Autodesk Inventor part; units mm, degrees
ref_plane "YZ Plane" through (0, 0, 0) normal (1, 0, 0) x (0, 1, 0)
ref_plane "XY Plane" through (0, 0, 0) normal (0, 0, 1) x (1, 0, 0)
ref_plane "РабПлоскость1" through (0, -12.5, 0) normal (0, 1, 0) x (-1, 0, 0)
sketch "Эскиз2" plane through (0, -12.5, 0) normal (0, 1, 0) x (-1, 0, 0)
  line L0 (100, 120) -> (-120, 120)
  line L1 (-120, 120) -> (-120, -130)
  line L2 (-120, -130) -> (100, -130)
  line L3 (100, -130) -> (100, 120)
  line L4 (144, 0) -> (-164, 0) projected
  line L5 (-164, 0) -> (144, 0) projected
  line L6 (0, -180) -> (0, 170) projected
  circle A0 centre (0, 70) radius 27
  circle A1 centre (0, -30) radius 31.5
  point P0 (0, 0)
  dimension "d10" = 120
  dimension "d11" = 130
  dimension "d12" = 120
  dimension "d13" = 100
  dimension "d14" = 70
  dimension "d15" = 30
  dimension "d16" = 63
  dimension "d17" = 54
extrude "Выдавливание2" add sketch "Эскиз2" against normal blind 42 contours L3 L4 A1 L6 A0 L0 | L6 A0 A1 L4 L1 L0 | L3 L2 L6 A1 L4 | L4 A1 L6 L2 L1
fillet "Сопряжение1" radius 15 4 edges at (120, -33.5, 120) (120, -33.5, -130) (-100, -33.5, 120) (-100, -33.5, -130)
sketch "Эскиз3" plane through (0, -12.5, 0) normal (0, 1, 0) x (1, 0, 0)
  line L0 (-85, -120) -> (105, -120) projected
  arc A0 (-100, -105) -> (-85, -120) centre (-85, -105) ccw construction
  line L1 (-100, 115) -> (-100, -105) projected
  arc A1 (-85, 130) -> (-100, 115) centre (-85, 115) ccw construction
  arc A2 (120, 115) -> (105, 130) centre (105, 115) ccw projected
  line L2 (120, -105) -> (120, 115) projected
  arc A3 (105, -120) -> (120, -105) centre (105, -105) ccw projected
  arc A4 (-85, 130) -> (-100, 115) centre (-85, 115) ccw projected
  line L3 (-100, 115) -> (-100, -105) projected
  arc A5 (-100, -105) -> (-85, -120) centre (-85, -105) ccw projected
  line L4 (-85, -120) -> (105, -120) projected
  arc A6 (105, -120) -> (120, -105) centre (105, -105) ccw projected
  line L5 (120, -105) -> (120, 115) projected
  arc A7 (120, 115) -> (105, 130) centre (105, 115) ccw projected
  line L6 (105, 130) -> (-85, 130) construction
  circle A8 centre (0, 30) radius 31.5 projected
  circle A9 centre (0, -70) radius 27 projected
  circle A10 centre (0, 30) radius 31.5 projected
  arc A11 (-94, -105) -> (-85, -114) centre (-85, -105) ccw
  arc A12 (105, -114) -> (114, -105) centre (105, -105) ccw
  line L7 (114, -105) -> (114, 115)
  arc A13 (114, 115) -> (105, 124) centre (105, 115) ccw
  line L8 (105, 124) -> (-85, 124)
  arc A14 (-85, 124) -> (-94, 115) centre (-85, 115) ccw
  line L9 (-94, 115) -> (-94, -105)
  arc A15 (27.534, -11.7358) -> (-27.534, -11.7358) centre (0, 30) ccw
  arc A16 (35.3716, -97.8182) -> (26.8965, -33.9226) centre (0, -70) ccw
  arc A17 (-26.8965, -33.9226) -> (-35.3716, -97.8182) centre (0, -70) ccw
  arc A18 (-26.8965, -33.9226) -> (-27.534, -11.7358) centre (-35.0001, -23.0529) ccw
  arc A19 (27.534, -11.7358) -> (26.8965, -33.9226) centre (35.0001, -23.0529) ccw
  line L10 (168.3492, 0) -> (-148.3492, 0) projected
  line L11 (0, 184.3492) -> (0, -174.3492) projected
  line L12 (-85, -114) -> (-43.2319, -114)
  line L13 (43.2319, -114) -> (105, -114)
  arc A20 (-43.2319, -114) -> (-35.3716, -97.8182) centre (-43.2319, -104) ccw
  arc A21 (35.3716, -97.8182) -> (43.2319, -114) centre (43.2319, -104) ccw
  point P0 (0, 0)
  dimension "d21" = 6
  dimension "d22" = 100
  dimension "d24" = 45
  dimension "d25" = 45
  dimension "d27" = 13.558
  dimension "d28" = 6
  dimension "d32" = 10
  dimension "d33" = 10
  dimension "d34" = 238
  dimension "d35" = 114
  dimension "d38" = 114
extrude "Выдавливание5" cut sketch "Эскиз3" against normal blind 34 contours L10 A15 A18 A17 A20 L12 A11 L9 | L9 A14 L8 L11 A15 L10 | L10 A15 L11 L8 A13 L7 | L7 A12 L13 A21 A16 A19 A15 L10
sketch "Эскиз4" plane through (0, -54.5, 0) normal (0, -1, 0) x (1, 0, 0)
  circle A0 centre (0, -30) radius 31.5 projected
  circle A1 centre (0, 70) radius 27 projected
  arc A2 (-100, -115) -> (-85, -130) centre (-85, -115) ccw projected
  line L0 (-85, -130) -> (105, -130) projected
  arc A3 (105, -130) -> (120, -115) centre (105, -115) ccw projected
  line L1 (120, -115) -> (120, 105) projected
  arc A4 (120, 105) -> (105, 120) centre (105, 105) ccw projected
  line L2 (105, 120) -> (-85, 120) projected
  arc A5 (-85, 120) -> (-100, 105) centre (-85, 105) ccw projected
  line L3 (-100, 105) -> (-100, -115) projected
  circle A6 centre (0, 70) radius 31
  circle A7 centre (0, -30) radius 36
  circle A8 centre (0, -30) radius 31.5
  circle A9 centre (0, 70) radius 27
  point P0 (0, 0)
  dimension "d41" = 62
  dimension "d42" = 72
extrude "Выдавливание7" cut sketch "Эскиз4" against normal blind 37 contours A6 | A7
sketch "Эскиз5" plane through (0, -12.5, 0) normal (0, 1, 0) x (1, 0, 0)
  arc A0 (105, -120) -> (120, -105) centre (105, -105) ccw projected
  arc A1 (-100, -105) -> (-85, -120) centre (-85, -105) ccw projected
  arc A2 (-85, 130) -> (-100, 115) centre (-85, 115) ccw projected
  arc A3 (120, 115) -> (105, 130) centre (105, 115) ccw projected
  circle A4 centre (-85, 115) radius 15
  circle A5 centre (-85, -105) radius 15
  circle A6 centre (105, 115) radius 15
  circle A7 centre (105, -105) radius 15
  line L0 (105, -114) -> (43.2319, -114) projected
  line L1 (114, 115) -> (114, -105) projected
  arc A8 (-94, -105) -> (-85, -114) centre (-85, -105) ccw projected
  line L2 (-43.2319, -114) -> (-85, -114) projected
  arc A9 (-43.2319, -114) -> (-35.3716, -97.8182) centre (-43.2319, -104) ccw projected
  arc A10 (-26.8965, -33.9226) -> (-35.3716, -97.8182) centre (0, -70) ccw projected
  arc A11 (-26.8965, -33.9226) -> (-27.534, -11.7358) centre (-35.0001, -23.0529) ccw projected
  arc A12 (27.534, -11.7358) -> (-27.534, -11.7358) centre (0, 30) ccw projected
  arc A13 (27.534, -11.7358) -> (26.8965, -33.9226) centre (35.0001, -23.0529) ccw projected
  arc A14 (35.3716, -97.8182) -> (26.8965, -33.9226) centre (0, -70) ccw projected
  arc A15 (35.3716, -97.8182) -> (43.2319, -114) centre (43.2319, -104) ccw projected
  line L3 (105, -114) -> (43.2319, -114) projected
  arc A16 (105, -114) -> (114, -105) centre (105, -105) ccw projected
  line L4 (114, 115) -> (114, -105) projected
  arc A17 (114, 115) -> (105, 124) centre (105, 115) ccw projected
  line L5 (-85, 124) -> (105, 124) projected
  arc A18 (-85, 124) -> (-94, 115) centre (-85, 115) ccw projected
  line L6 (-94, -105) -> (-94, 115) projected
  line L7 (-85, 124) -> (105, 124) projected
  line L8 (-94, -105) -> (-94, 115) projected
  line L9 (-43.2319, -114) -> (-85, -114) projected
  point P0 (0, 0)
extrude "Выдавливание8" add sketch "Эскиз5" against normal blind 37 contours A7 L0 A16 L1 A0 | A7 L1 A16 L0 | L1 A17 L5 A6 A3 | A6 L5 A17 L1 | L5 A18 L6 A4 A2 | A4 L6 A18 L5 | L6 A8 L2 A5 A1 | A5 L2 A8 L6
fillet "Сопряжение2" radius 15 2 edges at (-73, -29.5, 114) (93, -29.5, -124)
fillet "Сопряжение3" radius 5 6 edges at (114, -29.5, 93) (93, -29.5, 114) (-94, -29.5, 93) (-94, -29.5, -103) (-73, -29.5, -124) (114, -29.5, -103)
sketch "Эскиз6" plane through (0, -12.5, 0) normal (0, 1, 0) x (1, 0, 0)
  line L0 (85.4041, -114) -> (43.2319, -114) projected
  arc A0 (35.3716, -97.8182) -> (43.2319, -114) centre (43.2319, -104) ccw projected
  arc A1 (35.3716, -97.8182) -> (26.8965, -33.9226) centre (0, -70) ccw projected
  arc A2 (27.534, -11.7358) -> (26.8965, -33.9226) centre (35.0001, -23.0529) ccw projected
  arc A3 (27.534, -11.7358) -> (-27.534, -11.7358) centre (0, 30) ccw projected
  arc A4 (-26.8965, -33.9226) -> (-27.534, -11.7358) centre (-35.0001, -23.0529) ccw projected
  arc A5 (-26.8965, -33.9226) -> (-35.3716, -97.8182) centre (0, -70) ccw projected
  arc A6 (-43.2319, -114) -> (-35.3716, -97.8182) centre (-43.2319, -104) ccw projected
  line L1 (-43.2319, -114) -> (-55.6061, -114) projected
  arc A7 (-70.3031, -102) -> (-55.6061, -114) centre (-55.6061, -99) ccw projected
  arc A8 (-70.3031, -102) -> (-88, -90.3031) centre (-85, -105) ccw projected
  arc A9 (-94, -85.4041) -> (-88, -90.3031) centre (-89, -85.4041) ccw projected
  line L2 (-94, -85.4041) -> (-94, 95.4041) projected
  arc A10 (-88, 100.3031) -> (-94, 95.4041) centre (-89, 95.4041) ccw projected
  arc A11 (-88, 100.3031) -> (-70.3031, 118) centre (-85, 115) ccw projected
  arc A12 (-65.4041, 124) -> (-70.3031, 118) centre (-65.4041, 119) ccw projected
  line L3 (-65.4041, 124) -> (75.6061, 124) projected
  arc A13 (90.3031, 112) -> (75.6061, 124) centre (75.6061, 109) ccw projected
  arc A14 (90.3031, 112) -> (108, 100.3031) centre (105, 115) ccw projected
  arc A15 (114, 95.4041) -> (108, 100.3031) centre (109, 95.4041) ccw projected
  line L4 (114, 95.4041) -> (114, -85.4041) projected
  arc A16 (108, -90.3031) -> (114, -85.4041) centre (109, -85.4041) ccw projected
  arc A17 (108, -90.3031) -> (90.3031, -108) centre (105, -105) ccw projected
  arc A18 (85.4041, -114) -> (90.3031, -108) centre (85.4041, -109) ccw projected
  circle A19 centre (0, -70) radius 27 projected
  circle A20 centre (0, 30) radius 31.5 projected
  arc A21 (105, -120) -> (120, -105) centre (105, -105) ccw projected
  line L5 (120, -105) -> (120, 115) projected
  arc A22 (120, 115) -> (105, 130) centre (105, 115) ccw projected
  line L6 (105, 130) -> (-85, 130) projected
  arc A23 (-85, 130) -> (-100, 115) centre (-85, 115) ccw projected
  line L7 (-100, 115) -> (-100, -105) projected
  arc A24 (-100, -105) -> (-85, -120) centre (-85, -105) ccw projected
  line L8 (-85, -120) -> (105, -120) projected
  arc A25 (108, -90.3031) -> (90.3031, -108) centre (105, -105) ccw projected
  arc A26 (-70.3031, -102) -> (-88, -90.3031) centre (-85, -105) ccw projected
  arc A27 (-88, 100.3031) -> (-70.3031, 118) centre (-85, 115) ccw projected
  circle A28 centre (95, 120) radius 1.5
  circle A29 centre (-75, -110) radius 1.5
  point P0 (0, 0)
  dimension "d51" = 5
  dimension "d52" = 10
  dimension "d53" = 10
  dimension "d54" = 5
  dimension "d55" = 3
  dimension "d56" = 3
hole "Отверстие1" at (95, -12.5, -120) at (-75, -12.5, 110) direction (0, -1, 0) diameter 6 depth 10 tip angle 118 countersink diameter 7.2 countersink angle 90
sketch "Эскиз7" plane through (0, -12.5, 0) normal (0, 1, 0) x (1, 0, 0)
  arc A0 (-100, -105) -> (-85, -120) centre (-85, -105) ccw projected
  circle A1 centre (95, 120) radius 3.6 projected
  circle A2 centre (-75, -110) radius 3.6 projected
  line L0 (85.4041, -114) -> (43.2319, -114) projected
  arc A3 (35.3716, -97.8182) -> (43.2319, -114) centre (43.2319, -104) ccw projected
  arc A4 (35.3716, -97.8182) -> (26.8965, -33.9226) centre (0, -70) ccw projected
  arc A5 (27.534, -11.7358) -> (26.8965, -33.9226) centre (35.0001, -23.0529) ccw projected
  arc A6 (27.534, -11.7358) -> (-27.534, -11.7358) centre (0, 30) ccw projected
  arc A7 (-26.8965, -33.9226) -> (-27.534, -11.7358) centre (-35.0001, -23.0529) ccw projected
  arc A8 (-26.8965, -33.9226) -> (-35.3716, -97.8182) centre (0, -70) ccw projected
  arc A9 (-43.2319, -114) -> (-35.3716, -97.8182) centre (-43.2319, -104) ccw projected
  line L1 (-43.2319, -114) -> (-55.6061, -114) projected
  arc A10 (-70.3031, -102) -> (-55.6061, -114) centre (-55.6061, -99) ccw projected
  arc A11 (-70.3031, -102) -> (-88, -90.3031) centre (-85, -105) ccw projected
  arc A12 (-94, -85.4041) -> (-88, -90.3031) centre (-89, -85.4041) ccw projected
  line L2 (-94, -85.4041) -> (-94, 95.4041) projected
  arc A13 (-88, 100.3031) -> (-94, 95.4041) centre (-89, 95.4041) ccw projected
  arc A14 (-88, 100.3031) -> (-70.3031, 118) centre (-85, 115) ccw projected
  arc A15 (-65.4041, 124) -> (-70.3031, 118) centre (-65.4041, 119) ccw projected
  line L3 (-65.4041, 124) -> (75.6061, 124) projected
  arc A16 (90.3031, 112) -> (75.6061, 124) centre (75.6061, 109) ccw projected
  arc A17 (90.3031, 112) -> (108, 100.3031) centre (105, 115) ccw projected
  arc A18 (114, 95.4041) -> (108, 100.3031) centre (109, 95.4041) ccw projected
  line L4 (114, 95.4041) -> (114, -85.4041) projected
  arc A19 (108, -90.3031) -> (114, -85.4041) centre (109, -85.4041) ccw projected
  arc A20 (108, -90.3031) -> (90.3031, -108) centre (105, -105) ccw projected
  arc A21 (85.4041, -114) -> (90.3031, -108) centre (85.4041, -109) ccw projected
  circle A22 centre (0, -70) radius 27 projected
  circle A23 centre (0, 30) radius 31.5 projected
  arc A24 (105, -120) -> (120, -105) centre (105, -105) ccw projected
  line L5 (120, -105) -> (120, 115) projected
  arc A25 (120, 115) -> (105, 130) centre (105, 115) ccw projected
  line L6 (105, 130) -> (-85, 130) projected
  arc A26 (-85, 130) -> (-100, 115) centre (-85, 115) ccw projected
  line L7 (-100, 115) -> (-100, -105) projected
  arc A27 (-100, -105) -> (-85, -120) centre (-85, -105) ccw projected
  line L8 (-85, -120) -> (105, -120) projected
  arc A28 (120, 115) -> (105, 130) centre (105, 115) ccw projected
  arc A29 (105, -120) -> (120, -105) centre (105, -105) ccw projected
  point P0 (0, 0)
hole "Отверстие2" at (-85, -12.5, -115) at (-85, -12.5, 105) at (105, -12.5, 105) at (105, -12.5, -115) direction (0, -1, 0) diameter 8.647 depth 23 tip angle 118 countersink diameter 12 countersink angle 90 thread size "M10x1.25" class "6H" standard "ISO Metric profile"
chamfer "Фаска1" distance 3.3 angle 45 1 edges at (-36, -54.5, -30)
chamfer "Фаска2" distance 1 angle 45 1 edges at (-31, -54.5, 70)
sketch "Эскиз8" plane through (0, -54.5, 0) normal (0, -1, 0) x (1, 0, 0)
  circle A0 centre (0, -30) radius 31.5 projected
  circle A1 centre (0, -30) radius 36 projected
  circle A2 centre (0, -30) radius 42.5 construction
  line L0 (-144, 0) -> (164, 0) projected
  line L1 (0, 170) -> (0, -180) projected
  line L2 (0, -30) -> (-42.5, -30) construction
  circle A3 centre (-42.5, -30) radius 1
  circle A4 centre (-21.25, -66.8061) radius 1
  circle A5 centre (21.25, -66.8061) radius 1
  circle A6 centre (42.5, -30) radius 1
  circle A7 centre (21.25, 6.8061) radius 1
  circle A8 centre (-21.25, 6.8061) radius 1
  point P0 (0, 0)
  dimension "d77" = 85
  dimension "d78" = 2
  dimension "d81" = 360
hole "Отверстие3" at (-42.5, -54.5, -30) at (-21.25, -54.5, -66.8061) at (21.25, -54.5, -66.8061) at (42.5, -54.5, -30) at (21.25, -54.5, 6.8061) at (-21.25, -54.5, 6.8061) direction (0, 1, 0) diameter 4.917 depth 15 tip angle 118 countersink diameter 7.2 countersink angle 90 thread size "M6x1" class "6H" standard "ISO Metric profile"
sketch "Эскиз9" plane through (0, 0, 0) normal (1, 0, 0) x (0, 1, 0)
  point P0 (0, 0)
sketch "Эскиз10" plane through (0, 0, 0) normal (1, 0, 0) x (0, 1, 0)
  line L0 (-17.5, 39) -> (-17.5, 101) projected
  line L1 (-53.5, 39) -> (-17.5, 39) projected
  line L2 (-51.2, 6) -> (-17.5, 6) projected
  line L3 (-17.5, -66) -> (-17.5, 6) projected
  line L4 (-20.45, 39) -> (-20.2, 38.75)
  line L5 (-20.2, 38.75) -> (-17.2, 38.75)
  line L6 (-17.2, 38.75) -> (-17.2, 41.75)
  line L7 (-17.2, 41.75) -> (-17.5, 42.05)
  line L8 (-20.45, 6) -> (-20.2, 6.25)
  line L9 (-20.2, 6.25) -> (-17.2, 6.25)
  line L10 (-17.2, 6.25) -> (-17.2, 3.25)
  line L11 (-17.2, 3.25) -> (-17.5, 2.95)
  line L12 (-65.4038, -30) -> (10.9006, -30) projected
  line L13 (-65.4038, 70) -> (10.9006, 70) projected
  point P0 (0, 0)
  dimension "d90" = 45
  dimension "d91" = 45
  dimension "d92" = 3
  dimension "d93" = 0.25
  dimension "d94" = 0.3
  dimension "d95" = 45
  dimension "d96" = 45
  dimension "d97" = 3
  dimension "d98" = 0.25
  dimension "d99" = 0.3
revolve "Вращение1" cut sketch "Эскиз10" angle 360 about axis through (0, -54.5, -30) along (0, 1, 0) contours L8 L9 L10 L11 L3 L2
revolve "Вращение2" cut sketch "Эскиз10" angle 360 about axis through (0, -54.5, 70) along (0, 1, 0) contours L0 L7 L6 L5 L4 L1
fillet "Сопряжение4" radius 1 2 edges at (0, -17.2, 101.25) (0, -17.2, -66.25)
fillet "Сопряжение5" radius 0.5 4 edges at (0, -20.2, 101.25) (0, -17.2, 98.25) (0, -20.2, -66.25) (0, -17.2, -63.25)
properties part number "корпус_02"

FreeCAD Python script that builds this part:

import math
import FreeCAD as App
import Part
import Sketcher
from FreeCAD import Vector
Q = App.Units.Quantity


def edges_at(feature, points):
    """Names of the edges that pass closest to the given points."""
    edges = feature.Shape.Edges
    near = lambda p: min(range(len(edges)), key=lambda i: edges[i].distToShape(Part.Vertex(*p))[0])
    return sorted({f"Edge{near(p) + 1}" for p in points})

doc = App.newDocument("Part")
body = doc.addObject("PartDesign::Body", "Body")

# Sketch on XZ plane
sketch1 = body.newObject("Sketcher::SketchObject", "Sketch")
sketch1.AttachmentSupport = (doc.getObject("XZ_Plane"), [""])
sketch1.MapMode = "FlatFace"
sketch1.AttachmentOffset = App.Placement(Vector(0, 0, 12.5), App.Rotation())
sketch1.addGeometry([
    Part.LineSegment(Vector(-100, 120, 0), Vector(120, 120, 0)),  # 0
    Part.LineSegment(Vector(120, 120, 0), Vector(120, -130, 0)),  # 1
    Part.LineSegment(Vector(120, -130, 0), Vector(-100, -130, 0)),  # 2
    Part.LineSegment(Vector(-100, -130, 0), Vector(-100, 120, 0)),  # 3
    Part.Circle(Vector(0, -30, 0), Vector(0, 0, 1), 31.5),  # 4
    Part.Circle(Vector(0, 70, 0), Vector(0, 0, 1), 27),  # 5
], False)
sketch1.addConstraint([
    Sketcher.Constraint("Coincident", 0, 2, 1, 1),
    Sketcher.Constraint("Coincident", 1, 2, 2, 1),
    Sketcher.Constraint("Coincident", 2, 2, 3, 1),
    Sketcher.Constraint("Coincident", 3, 2, 0, 1),
    Sketcher.Constraint("Horizontal", 0),
    Sketcher.Constraint("Vertical", 1),
    Sketcher.Constraint("Horizontal", 2),
    Sketcher.Constraint("Vertical", 3),
    Sketcher.Constraint("PointOnObject", 4, 3, -2),
    Sketcher.Constraint("PointOnObject", 5, 3, -2),
    Sketcher.Constraint("Diameter", 4, Q("63 mm")),
    Sketcher.Constraint("Diameter", 5, Q("54 mm")),
    Sketcher.Constraint("DistanceY", 4, 3, -1, 1, Q("30 mm")),
    Sketcher.Constraint("DistanceY", -1, 1, 5, 3, Q("70 mm")),
    Sketcher.Constraint("DistanceX", -1, 1, 0, 2, Q("120 mm")),
    Sketcher.Constraint("DistanceY", -1, 1, 0, 2, Q("120 mm")),
    Sketcher.Constraint("DistanceY", 1, 2, -1, 1, Q("130 mm")),
    Sketcher.Constraint("DistanceX", 2, 2, -1, 1, Q("100 mm")),
])
pad1 = body.newObject("PartDesign::Pad", "Pad")
pad1.Profile = sketch1
pad1.Length = 42
doc.recompute()

fillet = body.newObject("PartDesign::Fillet", "Fillet")
fillet.Base = (pad1, edges_at(pad1, [
    (120, -33.5, 120),
    (120, -33.5, -130),
    (-100, -33.5, 120),
    (-100, -33.5, -130),
]))
fillet.Radius = 15

# Sketch on XZ plane
sketch2 = body.newObject("Sketcher::SketchObject", "Sketch001")
sketch2.AttachmentSupport = (doc.getObject("XZ_Plane"), [""])
sketch2.MapMode = "FlatFace"
sketch2.AttachmentOffset = App.Placement(Vector(0, 0, 12.5), App.Rotation())
sketch2.addGeometry([
    Part.ArcOfCircle(Part.Circle(Vector(0, -30, 0), Vector(0, 0, 1), 49.999982), math.radians(123.41369), math.radians(416.58631)),  # 0
    Part.ArcOfCircle(Part.Circle(Vector(35.0001, 23.0529, 0), Vector(0, 0, 1), 13.558001), math.radians(126.705338), math.radians(236.586426)),  # 1
    Part.ArcOfCircle(Part.Circle(Vector(0, 70, 0), Vector(0, 0, 1), 45.000006), math.radians(-53.294656), math.radians(38.183486)),  # 2
    Part.ArcOfCircle(Part.Circle(Vector(43.2319, 104, 0), Vector(0, 0, 1), 9.999948), math.radians(90), math.radians(218.183583)),  # 3
    Part.LineSegment(Vector(43.2319, 114, 0), Vector(105, 114, 0)),  # 4
    Part.ArcOfCircle(Part.Circle(Vector(105, 105, 0), Vector(0, 0, 1), 9), math.radians(0), math.radians(90)),  # 5
    Part.LineSegment(Vector(114, 105, 0), Vector(114, -115, 0)),  # 6
    Part.ArcOfCircle(Part.Circle(Vector(105, -115, 0), Vector(0, 0, 1), 9), math.radians(-90), math.radians(0)),  # 7
    Part.LineSegment(Vector(105, -124, 0), Vector(-85, -124, 0)),  # 8
    Part.ArcOfCircle(Part.Circle(Vector(-85, -115, 0), Vector(0, 0, 1), 9), math.radians(180), math.radians(270)),  # 9
    Part.LineSegment(Vector(-94, -115, 0), Vector(-94, 105, 0)),  # 10
    Part.ArcOfCircle(Part.Circle(Vector(-85, 105, 0), Vector(0, 0, 1), 9), math.radians(90), math.radians(180)),  # 11
    Part.LineSegment(Vector(-85, 114, 0), Vector(-43.2319, 114, 0)),  # 12
    Part.ArcOfCircle(Part.Circle(Vector(-43.2319, 104, 0), Vector(0, 0, 1), 10), math.radians(-38.183583), math.radians(90)),  # 13
    Part.ArcOfCircle(Part.Circle(Vector(0, 70, 0), Vector(0, 0, 1), 45.000026), math.radians(141.816514), math.radians(233.294656)),  # 14
    Part.ArcOfCircle(Part.Circle(Vector(-35.0001, 23.0529, 0), Vector(0, 0, 1), 13.557976), math.radians(-56.586426), math.radians(53.294662)),  # 15
], False)
sketch2.addConstraint([
    Sketcher.Constraint("Tangent", 0, 2, 1, 2),
    Sketcher.Constraint("Tangent", 1, 1, 2, 1),
    Sketcher.Constraint("Tangent", 2, 2, 3, 2),
    Sketcher.Constraint("Tangent", 3, 1, 4, 1),
    Sketcher.Constraint("Tangent", 4, 2, 5, 2),
    Sketcher.Constraint("Tangent", 5, 1, 6, 1),
    Sketcher.Constraint("Tangent", 6, 2, 7, 2),
    Sketcher.Constraint("Tangent", 7, 1, 8, 1),
    Sketcher.Constraint("Tangent", 8, 2, 9, 2),
    Sketcher.Constraint("Tangent", 9, 1, 10, 1),
    Sketcher.Constraint("Tangent", 10, 2, 11, 2),
    Sketcher.Constraint("Tangent", 11, 1, 12, 1),
    Sketcher.Constraint("Tangent", 12, 2, 13, 2),
    Sketcher.Constraint("Tangent", 13, 1, 14, 1),
    Sketcher.Constraint("Tangent", 14, 2, 15, 2),
    Sketcher.Constraint("Tangent", 15, 1, 0, 1),
    Sketcher.Constraint("Horizontal", 4),
    Sketcher.Constraint("Vertical", 6),
    Sketcher.Constraint("Horizontal", 8),
    Sketcher.Constraint("Vertical", 10),
    Sketcher.Constraint("Horizontal", 12),
    Sketcher.Constraint("Coincident", 14, 3, 2, 3),
    Sketcher.Constraint("Equal", 5, 7),
    Sketcher.Constraint("Equal", 7, 9),
    Sketcher.Constraint("Equal", 9, 11),
    Sketcher.Constraint("Equal", 3, 13),
    Sketcher.Constraint("Equal", 2, 14),
    Sketcher.Constraint("Equal", 1, 15),
    Sketcher.Constraint("Symmetric", 3, 3, 13, 3, -2),
    Sketcher.Constraint("PointOnObject", 0, 3, -2),
    Sketcher.Constraint("Radius", 0, Q("50 mm")),
    Sketcher.Constraint("Radius", 2, Q("45 mm")),
    Sketcher.Constraint("Radius", 3, Q("10 mm")),
    Sketcher.Constraint("DistanceY", -1, 1, 3, 1, Q("114 mm")),
    Sketcher.Constraint("DistanceX", -1, 1, 5, 1, Q("114 mm")),
    Sketcher.Constraint("Radius", 1, Q("13.558 mm")),
    Sketcher.Constraint("Radius", 5, Q("9 mm")),
    Sketcher.Constraint("DistanceY", 0, 3, 2, 3, Q("100 mm")),
    Sketcher.Constraint("DistanceX", 8, 2, 8, 1, Q("190 mm")),
    Sketcher.Constraint("DistanceY", 6, 2, 6, 1, Q("220 mm")),
    Sketcher.Constraint("DistanceY", 0, 3, -1, 1, Q("30 mm")),
])
pocket1 = body.newObject("PartDesign::Pocket", "Pocket")
pocket1.Profile = sketch2
pocket1.Length = 34
pocket1.Reversed = True

# Sketch on XZ plane
sketch3 = body.newObject("Sketcher::SketchObject", "Sketch002")
sketch3.AttachmentSupport = (doc.getObject("XZ_Plane"), [""])
sketch3.MapMode = "FlatFace"
sketch3.AttachmentOffset = App.Placement(Vector(0, 0, 54.5), App.Rotation())
sketch3.addGeometry([
    Part.Circle(Vector(0, 70, 0), Vector(0, 0, 1), 31),
    Part.Circle(Vector(0, 70, 0), Vector(0, 0, 1), 27),
    Part.Circle(Vector(0, -30, 0), Vector(0, 0, 1), 36),
    Part.Circle(Vector(0, -30, 0), Vector(0, 0, 1), 31.5),
], False)
sketch3.addConstraint([
    Sketcher.Constraint("Coincident", 1, 3, 0, 3),
    Sketcher.Constraint("Coincident", 3, 3, 2, 3),
    Sketcher.Constraint("PointOnObject", 0, 3, -2),
    Sketcher.Constraint("PointOnObject", 2, 3, -2),
    Sketcher.Constraint("Diameter", 0, Q("62 mm")),
    Sketcher.Constraint("Diameter", 2, Q("72 mm")),
    Sketcher.Constraint("Diameter", 1, Q("54 mm")),
    Sketcher.Constraint("Diameter", 3, Q("63 mm")),
    Sketcher.Constraint("DistanceY", -1, 1, 0, 3, Q("70 mm")),
    Sketcher.Constraint("DistanceY", 2, 3, -1, 1, Q("30 mm")),
])
pocket2 = body.newObject("PartDesign::Pocket", "Pocket001")
pocket2.Profile = sketch3
pocket2.Length = 37

# Sketch on XZ plane
sketch4 = body.newObject("Sketcher::SketchObject", "Sketch003")
sketch4.AttachmentSupport = (doc.getObject("XZ_Plane"), [""])
sketch4.MapMode = "FlatFace"
sketch4.AttachmentOffset = App.Placement(Vector(0, 0, 12.5), App.Rotation())
sketch4.addGeometry([
    Part.Circle(Vector(105, 105, 0), Vector(0, 0, 1), 15),
    Part.Circle(Vector(105, -115, 0), Vector(0, 0, 1), 15),
    Part.Circle(Vector(-85, -115, 0), Vector(0, 0, 1), 15),
    Part.Circle(Vector(-85, 105, 0), Vector(0, 0, 1), 15),
], False)
sketch4.addConstraint([
    Sketcher.Constraint("Equal", 0, 1),
    Sketcher.Constraint("Equal", 1, 2),
    Sketcher.Constraint("Equal", 2, 3),
    Sketcher.Constraint("Horizontal", 1, 3, 2, 3),
    Sketcher.Constraint("Horizontal", 0, 3, 3, 3),
    Sketcher.Constraint("Vertical", 0, 3, 1, 3),
    Sketcher.Constraint("Vertical", 2, 3, 3, 3),
    Sketcher.Constraint("Diameter", 0, Q("30 mm")),
    Sketcher.Constraint("DistanceX", -1, 1, 0, 3, Q("105 mm")),
    Sketcher.Constraint("DistanceY", -1, 1, 0, 3, Q("105 mm")),
    Sketcher.Constraint("DistanceY", 1, 3, -1, 1, Q("115 mm")),
    Sketcher.Constraint("DistanceX", 2, 3, -1, 1, Q("85 mm")),
])
pad2 = body.newObject("PartDesign::Pad", "Pad001")
pad2.Profile = sketch4
pad2.Length = 37
doc.recompute()

fillet2 = body.newObject("PartDesign::Fillet", "Fillet001")
fillet2.Base = (pad2, edges_at(pad2, [(-73, -29.5, 114), (93, -29.5, -124)]))
fillet2.Radius = 15
doc.recompute()

fillet3 = body.newObject("PartDesign::Fillet", "Fillet002")
fillet3.Base = (fillet2, edges_at(fillet2, [
    (114, -29.5, 93),
    (93, -29.5, 114),
    (-94, -29.5, 93),
    (-94, -29.5, -103),
    (-73, -29.5, -124),
    (114, -29.5, -103),
]))
fillet3.Radius = 5

# Sketch on XZ plane
sketch5 = body.newObject("Sketcher::SketchObject", "Sketch004")
sketch5.AttachmentSupport = (doc.getObject("XZ_Plane"), [""])
sketch5.MapMode = "FlatFace"
sketch5.AttachmentOffset = App.Placement(Vector(0, 0, 12.5), App.Rotation())
sketch5.addGeometry([
    Part.Circle(Vector(95, -120, 0), Vector(0, 0, 1), 3),
    Part.Circle(Vector(-75, 110, 0), Vector(0, 0, 1), 3),
], False)
sketch5.addConstraint([
    Sketcher.Constraint("Equal", 0, 1),
    Sketcher.Constraint("Diameter", 0, Q("6 mm")),
    Sketcher.Constraint("DistanceX", -1, 1, 0, 3, Q("95 mm")),
    Sketcher.Constraint("DistanceY", 0, 3, -1, 1, Q("120 mm")),
    Sketcher.Constraint("DistanceX", 1, 3, -1, 1, Q("75 mm")),
    Sketcher.Constraint("DistanceY", -1, 1, 1, 3, Q("110 mm")),
])
doc.recompute()
hole = body.newObject("PartDesign::Hole", "Hole")
hole.Profile = sketch5
hole.ThreadType = "None"
hole.Diameter = 6
hole.DepthType = "Dimension"
hole.Depth = 10
hole.DrillPoint = "Angled"
hole.DrillPointAngle = 118
hole.HoleCutType = "Countersink"
hole.HoleCutDiameter = 7.2
hole.HoleCutCountersinkAngle = 90
hole.Reversed = True

# Sketch on XZ plane
sketch6 = body.newObject("Sketcher::SketchObject", "Sketch005")
sketch6.AttachmentSupport = (doc.getObject("XZ_Plane"), [""])
sketch6.MapMode = "FlatFace"
sketch6.AttachmentOffset = App.Placement(Vector(0, 0, 12.5), App.Rotation())
sketch6.addGeometry([
    Part.Circle(Vector(-85, -115, 0), Vector(0, 0, 1), 4.3235),
    Part.Circle(Vector(-85, 105, 0), Vector(0, 0, 1), 4.3235),
    Part.Circle(Vector(105, 105, 0), Vector(0, 0, 1), 4.3235),
    Part.Circle(Vector(105, -115, 0), Vector(0, 0, 1), 4.3235),
], False)
sketch6.addConstraint([
    Sketcher.Constraint("Equal", 0, 1),
    Sketcher.Constraint("Equal", 1, 2),
    Sketcher.Constraint("Equal", 2, 3),
    Sketcher.Constraint("Horizontal", 1, 3, 2, 3),
    Sketcher.Constraint("Horizontal", 0, 3, 3, 3),
    Sketcher.Constraint("Vertical", 0, 3, 1, 3),
    Sketcher.Constraint("Vertical", 2, 3, 3, 3),
    Sketcher.Constraint("Diameter", 0, Q("8.647 mm")),
    Sketcher.Constraint("DistanceX", 0, 3, -1, 1, Q("85 mm")),
    Sketcher.Constraint("DistanceY", 0, 3, -1, 1, Q("115 mm")),
    Sketcher.Constraint("DistanceY", -1, 1, 1, 3, Q("105 mm")),
    Sketcher.Constraint("DistanceX", -1, 1, 2, 3, Q("105 mm")),
])
doc.recompute()
hole2 = body.newObject("PartDesign::Hole", "Hole001")
hole2.Profile = sketch6
hole2.ThreadType = "None"
hole2.Diameter = 8.647
hole2.DepthType = "Dimension"
hole2.Depth = 23
hole2.DrillPoint = "Angled"
hole2.DrillPointAngle = 118
hole2.HoleCutType = "Countersink"
hole2.HoleCutDiameter = 12
hole2.HoleCutCountersinkAngle = 90
hole2.Reversed = True
doc.recompute()

chamfer = body.newObject("PartDesign::Chamfer", "Chamfer")
chamfer.Base = (hole2, edges_at(hole2, [(-36, -54.5, -30)]))
chamfer.Size = 3.3
doc.recompute()

chamfer2 = body.newObject("PartDesign::Chamfer", "Chamfer001")
chamfer2.Base = (chamfer, edges_at(chamfer, [(-31, -54.5, 70)]))
chamfer2.Size = 1

# Sketch on XZ plane
sketch7 = body.newObject("Sketcher::SketchObject", "Sketch006")
sketch7.AttachmentSupport = (doc.getObject("XZ_Plane"), [""])
sketch7.MapMode = "FlatFace"
sketch7.AttachmentOffset = App.Placement(Vector(0, 0, 54.5), App.Rotation())
sketch7.addGeometry([
    Part.Circle(Vector(-42.5, -30, 0), Vector(0, 0, 1), 2.4585),  # 0
    Part.Circle(Vector(-21.25, -66.8061, 0), Vector(0, 0, 1), 2.4585),  # 1
    Part.Circle(Vector(21.25, -66.8061, 0), Vector(0, 0, 1), 2.4585),  # 2
    Part.Circle(Vector(42.5, -30, 0), Vector(0, 0, 1), 2.4585),  # 3
    Part.Circle(Vector(21.25, 6.8061, 0), Vector(0, 0, 1), 2.4585),  # 4
    Part.Circle(Vector(-21.25, 6.8061, 0), Vector(0, 0, 1), 2.4585),  # 5
], False)
sketch7.addConstraint([
    Sketcher.Constraint("Equal", 0, 1),
    Sketcher.Constraint("Equal", 1, 2),
    Sketcher.Constraint("Equal", 2, 3),
    Sketcher.Constraint("Equal", 3, 4),
    Sketcher.Constraint("Equal", 4, 5),
    Sketcher.Constraint("Symmetric", 1, 3, 2, 3, -2),
    Sketcher.Constraint("Symmetric", 0, 3, 3, 3, -2),
    Sketcher.Constraint("Symmetric", 4, 3, 5, 3, -2),
    Sketcher.Constraint("Vertical", 2, 3, 4, 3),
    Sketcher.Constraint("Diameter", 0, Q("4.917 mm")),
    Sketcher.Constraint("DistanceY", 0, 3, -1, 1, Q("30 mm")),
    Sketcher.Constraint("DistanceX", 0, 3, 3, 3, Q("85 mm")),
    Sketcher.Constraint("DistanceX", 1, 3, 2, 3, Q("42.5 mm")),
    Sketcher.Constraint("DistanceY", 1, 3, -1, 1, Q("66.806 mm")),
    Sketcher.Constraint("DistanceY", -1, 1, 4, 3, Q("6.806 mm")),
])
doc.recompute()
hole3 = body.newObject("PartDesign::Hole", "Hole002")
hole3.Profile = sketch7
hole3.ThreadType = "None"
hole3.Diameter = 4.917
hole3.DepthType = "Dimension"
hole3.Depth = 15
hole3.DrillPoint = "Angled"
hole3.DrillPointAngle = 118
hole3.HoleCutType = "Countersink"
hole3.HoleCutDiameter = 7.2
hole3.HoleCutCountersinkAngle = 90

# Sketch on YZ plane
sketch8 = body.newObject("Sketcher::SketchObject", "Sketch007")
sketch8.AttachmentSupport = (doc.getObject("YZ_Plane"), [""])
sketch8.MapMode = "FlatFace"
sketch8.addGeometry([
    Part.LineSegment(Vector(-20.2, 6.25, 0), Vector(-20.45, 6, 0)),  # 0
    Part.LineSegment(Vector(-20.45, 6, 0), Vector(-17.5, 6, 0)),  # 1
    Part.LineSegment(Vector(-17.5, 6, 0), Vector(-17.5, 2.95, 0)),  # 2
    Part.LineSegment(Vector(-17.5, 2.95, 0), Vector(-17.2, 3.25, 0)),  # 3
    Part.LineSegment(Vector(-17.2, 3.25, 0), Vector(-17.2, 6.25, 0)),  # 4
    Part.LineSegment(Vector(-17.2, 6.25, 0), Vector(-20.2, 6.25, 0)),  # 5
], False)
sketch8.addGeometry(Part.LineSegment(Vector(-20.45, -30, 0), Vector(-17.2, -30, 0)), True)  # axis
sketch8.addConstraint([
    Sketcher.Constraint("Coincident", 0, 2, 1, 1),
    Sketcher.Constraint("Coincident", 1, 2, 2, 1),
    Sketcher.Constraint("Coincident", 2, 2, 3, 1),
    Sketcher.Constraint("Coincident", 3, 2, 4, 1),
    Sketcher.Constraint("Coincident", 4, 2, 5, 1),
    Sketcher.Constraint("Coincident", 5, 2, 0, 1),
    Sketcher.Constraint("Horizontal", 1),
    Sketcher.Constraint("Vertical", 2),
    Sketcher.Constraint("Vertical", 4),
    Sketcher.Constraint("Horizontal", 5),
    Sketcher.Constraint("Horizontal", 6),
    Sketcher.Constraint("Parallel", 0, 3),
    Sketcher.Constraint("Vertical", 0, 2, 6, 1),
    Sketcher.Constraint("Vertical", 4, 2, 6, 2),
    Sketcher.Constraint("Equal", 5, 4),
    Sketcher.Constraint("DistanceX", 5, 2, 5, 1, Q("3 mm")),
    Sketcher.Constraint("Angle", 3, Q("45 deg")),
    Sketcher.Constraint("DistanceX", 2, 2, 3, 2, Q("0.3 mm")),
    Sketcher.Constraint("DistanceY", 1, 2, 4, 2, Q("0.25 mm")),
    Sketcher.Constraint("DistanceY", -1, 1, 0, 2, Q("6 mm")),
    Sketcher.Constraint("DistanceY", 6, 1, -1, 1, Q("30 mm")),
    Sketcher.Constraint("DistanceX", 1, 2, -1, 1, Q("17.5 mm")),
])
groove = body.newObject("PartDesign::Groove", "Groove")
groove.Profile = sketch8
groove.ReferenceAxis = (sketch8, ["Axis0"])
groove.Angle = 360

# Sketch on YZ plane
sketch9 = body.newObject("Sketcher::SketchObject", "Sketch008")
sketch9.AttachmentSupport = (doc.getObject("YZ_Plane"), [""])
sketch9.MapMode = "FlatFace"
sketch9.addGeometry([
    Part.LineSegment(Vector(-17.5, 42.05, 0), Vector(-17.5, 39, 0)),  # 0
    Part.LineSegment(Vector(-17.5, 39, 0), Vector(-20.45, 39, 0)),  # 1
    Part.LineSegment(Vector(-20.45, 39, 0), Vector(-20.2, 38.75, 0)),  # 2
    Part.LineSegment(Vector(-20.2, 38.75, 0), Vector(-17.2, 38.75, 0)),  # 3
    Part.LineSegment(Vector(-17.2, 38.75, 0), Vector(-17.2, 41.75, 0)),  # 4
    Part.LineSegment(Vector(-17.2, 41.75, 0), Vector(-17.5, 42.05, 0)),  # 5
], False)
sketch9.addGeometry(Part.LineSegment(Vector(-20.45, 70, 0), Vector(-17.2, 70, 0)), True)  # axis
sketch9.addConstraint([
    Sketcher.Constraint("Coincident", 0, 2, 1, 1),
    Sketcher.Constraint("Coincident", 1, 2, 2, 1),
    Sketcher.Constraint("Coincident", 2, 2, 3, 1),
    Sketcher.Constraint("Coincident", 3, 2, 4, 1),
    Sketcher.Constraint("Coincident", 4, 2, 5, 1),
    Sketcher.Constraint("Coincident", 5, 2, 0, 1),
    Sketcher.Constraint("Vertical", 0),
    Sketcher.Constraint("Horizontal", 1),
    Sketcher.Constraint("Horizontal", 3),
    Sketcher.Constraint("Vertical", 4),
    Sketcher.Constraint("Horizontal", 6),
    Sketcher.Constraint("Parallel", 2, 5),
    Sketcher.Constraint("Vertical", 1, 2, 6, 1),
    Sketcher.Constraint("Vertical", 4, 2, 6, 2),
    Sketcher.Constraint("Equal", 3, 4),
    Sketcher.Constraint("DistanceX", 3, 1, 3, 2, Q("3 mm")),
    Sketcher.Constraint("Angle", 2, Q("-45 deg")),
    Sketcher.Constraint("DistanceX", 0, 2, 3, 2, Q("0.3 mm")),
    Sketcher.Constraint("DistanceX", 1, 2, 2, 2, Q("0.25 mm")),
    Sketcher.Constraint("DistanceY", -1, 1, 0, 2, Q("39 mm")),
    Sketcher.Constraint("DistanceY", -1, 1, 6, 1, Q("70 mm")),
    Sketcher.Constraint("DistanceX", 0, 2, -1, 1, Q("17.5 mm")),
])
groove2 = body.newObject("PartDesign::Groove", "Groove001")
groove2.Profile = sketch9
groove2.ReferenceAxis = (sketch9, ["Axis0"])
groove2.Angle = 360
doc.recompute()

fillet4 = body.newObject("PartDesign::Fillet", "Fillet003")
fillet4.Base = (groove2, edges_at(groove2, [(0, -17.2, 101.25), (0, -17.2, -66.25)]))
fillet4.Radius = 1
doc.recompute()

fillet5 = body.newObject("PartDesign::Fillet", "Fillet004")
fillet5.Base = (fillet4, edges_at(fillet4, [
    (0, -20.2, 101.25),
    (0, -17.2, 98.25),
    (0, -20.2, -66.25),
    (0, -17.2, -63.25),
]))
fillet5.Radius = 0.5

doc.recompute()
